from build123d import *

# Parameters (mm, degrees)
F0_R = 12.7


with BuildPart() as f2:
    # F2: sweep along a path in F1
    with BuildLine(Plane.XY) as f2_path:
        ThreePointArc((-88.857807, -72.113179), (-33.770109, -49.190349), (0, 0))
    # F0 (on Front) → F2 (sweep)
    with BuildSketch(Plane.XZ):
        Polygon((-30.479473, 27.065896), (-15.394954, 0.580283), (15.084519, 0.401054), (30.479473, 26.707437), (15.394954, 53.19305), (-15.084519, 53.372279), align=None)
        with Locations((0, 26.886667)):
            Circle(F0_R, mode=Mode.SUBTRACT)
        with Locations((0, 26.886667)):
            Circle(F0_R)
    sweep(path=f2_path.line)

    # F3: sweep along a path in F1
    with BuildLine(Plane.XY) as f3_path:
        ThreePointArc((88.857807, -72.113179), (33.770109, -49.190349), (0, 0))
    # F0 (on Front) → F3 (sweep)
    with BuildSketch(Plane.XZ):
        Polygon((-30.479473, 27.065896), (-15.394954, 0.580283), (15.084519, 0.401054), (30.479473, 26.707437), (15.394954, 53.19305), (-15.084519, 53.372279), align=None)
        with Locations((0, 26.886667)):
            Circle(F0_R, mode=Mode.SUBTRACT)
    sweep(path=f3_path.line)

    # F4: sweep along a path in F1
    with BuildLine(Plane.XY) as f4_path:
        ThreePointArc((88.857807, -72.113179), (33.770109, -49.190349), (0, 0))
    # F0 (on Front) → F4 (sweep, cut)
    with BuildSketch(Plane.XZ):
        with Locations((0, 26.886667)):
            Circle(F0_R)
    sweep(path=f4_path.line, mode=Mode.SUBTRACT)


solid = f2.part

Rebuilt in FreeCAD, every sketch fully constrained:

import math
import FreeCAD as App
import Part
import Sketcher

V = App.Vector
Q = App.Units.Quantity

doc = App.newDocument("Part")
body = doc.addObject("PartDesign::Body", "Body")

sketch1 = doc.addObject("Sketcher::SketchObject", "Sketch")
body.addObject(sketch1)
sketch1.AttachmentSupport = (doc.XZ_Plane, [""])
sketch1.MapMode = "FlatFace"
sketch1.addGeometry(Part.LineSegment(V(-30, 27, 0), V(-15, 1, 0)), False)
sketch1.addGeometry(Part.LineSegment(V(-15, 1, 0), V(15, 0, 0)), False)
sketch1.addGeometry(Part.LineSegment(V(15, 0, 0), V(30, 27, 0)), False)
sketch1.addGeometry(Part.LineSegment(V(30, 27, 0), V(15, 53, 0)), False)
sketch1.addGeometry(Part.LineSegment(V(15, 53, 0), V(-15, 53, 0)), False)
sketch1.addGeometry(Part.LineSegment(V(-15, 53, 0), V(-30, 27, 0)), False)
sketch1.addConstraint(Sketcher.Constraint("Coincident", 0, 2, 1, 1))
sketch1.addConstraint(Sketcher.Constraint("Coincident", 1, 2, 2, 1))
sketch1.addConstraint(Sketcher.Constraint("Coincident", 2, 2, 3, 1))
sketch1.addConstraint(Sketcher.Constraint("Coincident", 3, 2, 4, 1))
sketch1.addConstraint(Sketcher.Constraint("Coincident", 4, 2, 5, 1))
sketch1.addConstraint(Sketcher.Constraint("Coincident", 5, 2, 0, 1))
sketch1.addConstraint(Sketcher.Constraint("Parallel", 0, 3))
sketch1.addConstraint(Sketcher.Constraint("Parallel", 1, 4))
sketch1.addConstraint(Sketcher.Constraint("Parallel", 2, 5))
sketch1.addConstraint(Sketcher.Constraint("Equal", 0, 1))
sketch1.addConstraint(Sketcher.Constraint("Equal", 1, 2))
sketch1.addConstraint(Sketcher.Constraint("Equal", 2, 3))
sketch1.addConstraint(Sketcher.Constraint("Distance", 0, Q("1.2 in")))
sketch1.addConstraint(Sketcher.Constraint("DistanceX", -1, 1, 1, 2, Q("15.084519 mm")))
sketch1.addConstraint(Sketcher.Constraint("DistanceY", -1, 1, 3, 2, Q("53.19305 mm")))
sketch1.addConstraint(Sketcher.Constraint("DistanceX", 4, 2, -1, 1, Q("15.084519 mm")))
sketch1.addConstraint(Sketcher.Constraint("DistanceY", -1, 1, 4, 2, Q("53.372279 mm")))
sketch1.addConstraint(Sketcher.Constraint("DistanceX", 3, 2, 2, 2, Q("15.084519 mm")))

sketch2 = doc.addObject("Sketcher::SketchObject", "Sketch001")
body.addObject(sketch2)
sketch2.AttachmentSupport = (doc.XY_Plane, [""])
sketch2.MapMode = "FlatFace"
sketch2.addGeometry(Part.ArcOfCircle(Part.Circle(V(-100, 33, 0), V(0, 0, 1), 105), math.radians(-84), math.radians(-18)), False)
sketch2.addConstraint(Sketcher.Constraint("Coincident", 0, 2, -1, 1))
sketch2.addConstraint(Sketcher.Constraint("Radius", 0, Q("105.237463 mm")))
sketch2.addConstraint(Sketcher.Constraint("DistanceY", 0, 1, -1, 1, Q("72.113179 mm")))
sketch2.addConstraint(Sketcher.Constraint("DistanceX", 0, 3, -1, 1, Q("100.085653 mm")))
doc.recompute()

additivepipe = doc.addObject("PartDesign::AdditivePipe", "AdditivePipe")
body.addObject(additivepipe)
additivepipe.Profile = sketch1
additivepipe.Spine = (sketch2, ["Edge1"])

sketch3 = doc.addObject("Sketcher::SketchObject", "Sketch002")
body.addObject(sketch3)
sketch3.AttachmentSupport = (doc.XZ_Plane, [""])
sketch3.MapMode = "FlatFace"
sketch3.addGeometry(Part.LineSegment(V(-30, 27, 0), V(-15, 1, 0)), False)
sketch3.addGeometry(Part.LineSegment(V(-15, 1, 0), V(15, 0, 0)), False)
sketch3.addGeometry(Part.LineSegment(V(15, 0, 0), V(30, 27, 0)), False)
sketch3.addGeometry(Part.LineSegment(V(30, 27, 0), V(15, 53, 0)), False)
sketch3.addGeometry(Part.LineSegment(V(15, 53, 0), V(-15, 53, 0)), False)
sketch3.addGeometry(Part.LineSegment(V(-15, 53, 0), V(-30, 27, 0)), False)
sketch3.addGeometry(Part.Circle(V(0, 27, 0), V(0, 0, 1), 13), False)
sketch3.addConstraint(Sketcher.Constraint("Coincident", 0, 2, 1, 1))
sketch3.addConstraint(Sketcher.Constraint("Coincident", 1, 2, 2, 1))
sketch3.addConstraint(Sketcher.Constraint("Coincident", 2, 2, 3, 1))
sketch3.addConstraint(Sketcher.Constraint("Coincident", 3, 2, 4, 1))
sketch3.addConstraint(Sketcher.Constraint("Coincident", 4, 2, 5, 1))
sketch3.addConstraint(Sketcher.Constraint("Coincident", 5, 2, 0, 1))
sketch3.addConstraint(Sketcher.Constraint("PointOnObject", 6, 3, -2))
sketch3.addConstraint(Sketcher.Constraint("Parallel", 0, 3))
sketch3.addConstraint(Sketcher.Constraint("Parallel", 1, 4))
sketch3.addConstraint(Sketcher.Constraint("Parallel", 2, 5))
sketch3.addConstraint(Sketcher.Constraint("Equal", 0, 1))
sketch3.addConstraint(Sketcher.Constraint("Equal", 1, 2))
sketch3.addConstraint(Sketcher.Constraint("Equal", 2, 3))
sketch3.addConstraint(Sketcher.Constraint("Diameter", 6, Q("1 in")))
sketch3.addConstraint(Sketcher.Constraint("Distance", 0, Q("1.2 in")))
sketch3.addConstraint(Sketcher.Constraint("DistanceX", -1, 1, 1, 2, Q("15.084519 mm")))
sketch3.addConstraint(Sketcher.Constraint("DistanceY", -1, 1, 3, 2, Q("53.19305 mm")))
sketch3.addConstraint(Sketcher.Constraint("DistanceX", 4, 2, -1, 1, Q("15.084519 mm")))
sketch3.addConstraint(Sketcher.Constraint("DistanceY", -1, 1, 4, 2, Q("53.372279 mm")))
sketch3.addConstraint(Sketcher.Constraint("DistanceY", 2, 2, 6, 3, Q("0.17923 mm")))
sketch3.addConstraint(Sketcher.Constraint("DistanceX", 3, 2, 2, 2, Q("15.084519 mm")))

sketch4 = doc.addObject("Sketcher::SketchObject", "Sketch003")
body.addObject(sketch4)
sketch4.AttachmentSupport = (doc.XY_Plane, [""])
sketch4.MapMode = "FlatFace"
sketch4.addGeometry(Part.ArcOfCircle(Part.Circle(V(100, 33, 0), V(0, 0, 1), 105), math.radians(-162), math.radians(-96)), False)
sketch4.addConstraint(Sketcher.Constraint("Coincident", 0, 1, -1, 1))
sketch4.addConstraint(Sketcher.Constraint("Radius", 0, Q("105.237463 mm")))
sketch4.addConstraint(Sketcher.Constraint("DistanceY", 0, 2, -1, 1, Q("72.113179 mm")))
sketch4.addConstraint(Sketcher.Constraint("DistanceX", -1, 1, 0, 3, Q("100.085653 mm")))
doc.recompute()

additivepipe2 = doc.addObject("PartDesign::AdditivePipe", "AdditivePipe001")
body.addObject(additivepipe2)
additivepipe2.Profile = sketch3
additivepipe2.Spine = (sketch4, ["Edge1"])

sketch5 = doc.addObject("Sketcher::SketchObject", "Sketch004")
body.addObject(sketch5)
sketch5.AttachmentSupport = (doc.XZ_Plane, [""])
sketch5.MapMode = "FlatFace"
sketch5.addGeometry(Part.Circle(V(0, 27, 0), V(0, 0, 1), 13), False)
sketch5.addConstraint(Sketcher.Constraint("PointOnObject", 0, 3, -2))
sketch5.addConstraint(Sketcher.Constraint("Diameter", 0, Q("1 in")))
sketch5.addConstraint(Sketcher.Constraint("DistanceY", -1, 1, 0, 3, Q("26.886667 mm")))

sketch6 = doc.addObject("Sketcher::SketchObject", "Sketch005")
body.addObject(sketch6)
sketch6.AttachmentSupport = (doc.XY_Plane, [""])
sketch6.MapMode = "FlatFace"
sketch6.addGeometry(Part.ArcOfCircle(Part.Circle(V(100, 33, 0), V(0, 0, 1), 105), math.radians(-162), math.radians(-96)), False)
sketch6.addConstraint(Sketcher.Constraint("Coincident", 0, 1, -1, 1))
sketch6.addConstraint(Sketcher.Constraint("Radius", 0, Q("105.237463 mm")))
sketch6.addConstraint(Sketcher.Constraint("DistanceY", 0, 2, -1, 1, Q("72.113179 mm")))
sketch6.addConstraint(Sketcher.Constraint("DistanceX", -1, 1, 0, 3, Q("100.085653 mm")))
doc.recompute()

subtractivepipe = doc.addObject("PartDesign::SubtractivePipe", "SubtractivePipe")
body.addObject(subtractivepipe)
subtractivepipe.Profile = sketch5
subtractivepipe.Spine = (sketch6, ["Edge1"])

doc.recompute()
